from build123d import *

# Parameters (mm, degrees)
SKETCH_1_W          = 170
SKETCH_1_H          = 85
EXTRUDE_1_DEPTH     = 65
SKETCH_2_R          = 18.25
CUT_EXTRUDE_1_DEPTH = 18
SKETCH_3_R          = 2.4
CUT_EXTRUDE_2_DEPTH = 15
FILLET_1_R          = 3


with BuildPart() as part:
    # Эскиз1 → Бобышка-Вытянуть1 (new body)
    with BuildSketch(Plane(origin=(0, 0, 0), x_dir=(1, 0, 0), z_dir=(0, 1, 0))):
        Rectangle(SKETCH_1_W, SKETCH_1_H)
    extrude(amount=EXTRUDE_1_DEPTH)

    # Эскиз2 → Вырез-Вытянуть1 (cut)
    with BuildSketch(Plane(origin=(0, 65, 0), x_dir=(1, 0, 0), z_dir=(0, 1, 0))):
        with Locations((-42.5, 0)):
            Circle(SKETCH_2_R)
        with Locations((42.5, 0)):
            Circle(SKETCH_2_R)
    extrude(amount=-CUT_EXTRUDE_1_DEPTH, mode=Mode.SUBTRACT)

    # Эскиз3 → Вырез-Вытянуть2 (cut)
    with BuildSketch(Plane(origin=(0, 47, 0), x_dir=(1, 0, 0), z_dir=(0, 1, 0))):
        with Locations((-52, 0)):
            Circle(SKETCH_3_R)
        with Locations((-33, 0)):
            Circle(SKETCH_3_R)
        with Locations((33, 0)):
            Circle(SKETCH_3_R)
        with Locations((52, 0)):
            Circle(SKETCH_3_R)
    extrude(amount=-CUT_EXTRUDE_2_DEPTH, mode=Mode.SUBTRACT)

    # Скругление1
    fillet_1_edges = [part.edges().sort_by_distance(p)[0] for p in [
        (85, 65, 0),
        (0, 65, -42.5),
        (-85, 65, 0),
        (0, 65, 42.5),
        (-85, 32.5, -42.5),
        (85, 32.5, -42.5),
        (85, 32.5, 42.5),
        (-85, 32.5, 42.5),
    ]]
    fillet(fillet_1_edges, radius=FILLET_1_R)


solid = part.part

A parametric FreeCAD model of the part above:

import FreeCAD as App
import Part
import Sketcher


def edges_at(feature, points):
    """Names of the edges that pass closest to the given points."""
    edges = feature.Shape.Edges
    near = lambda p: min(range(len(edges)), key=lambda i: edges[i].distToShape(Part.Vertex(*p))[0])
    return sorted({f"Edge{near(p) + 1}" for p in points})


def add_polygon(sketch, points):
    """Adds a closed chain of lines whose ends are joined by coincident constraints."""
    first, n = sketch.GeometryCount, len(points)
    for a, b in zip(points, points[1:] + points[:1]):
        sketch.addGeometry(Part.LineSegment(App.Vector(*a, 0), App.Vector(*b, 0)), False)
    for i in range(n):
        sketch.addConstraint(Sketcher.Constraint("Coincident", first + i, 2, first + (i + 1) % n, 1))

doc = App.newDocument("Part")
body = doc.addObject("PartDesign::Body", "Body")

# Sketch on XZ plane
sketch1 = doc.addObject("Sketcher::SketchObject", "Sketch")
body.addObject(sketch1)
sketch1.AttachmentSupport = (doc.XZ_Plane, [""])
sketch1.MapMode = "FlatFace"
add_polygon(sketch1, [(-85, -42), (-85, 42), (85, 42), (85, -42)])  # lines 0-3
sketch1.addConstraint(Sketcher.Constraint("Vertical", 0))
sketch1.addConstraint(Sketcher.Constraint("Horizontal", 1))
sketch1.addConstraint(Sketcher.Constraint("Vertical", 2))
sketch1.addConstraint(Sketcher.Constraint("Horizontal", 3))
sketch1.addConstraint(Sketcher.Constraint("Symmetric", 0, 2, 2, 2, -1, 1))
sketch1.addConstraint(Sketcher.Constraint("DistanceX", 1, 1, 1, 2, 170.0))
sketch1.addConstraint(Sketcher.Constraint("DistanceY", 0, 1, 0, 2, 85.0))
pad1 = doc.addObject("PartDesign::Pad", "Pad")
body.addObject(pad1)
pad1.Profile = sketch1
pad1.Length = 65
pad1.Reversed = True

# Sketch on XZ plane
sketch2 = doc.addObject("Sketcher::SketchObject", "Sketch001")
body.addObject(sketch2)
sketch2.AttachmentSupport = (doc.XZ_Plane, [""])
sketch2.MapMode = "FlatFace"
sketch2.AttachmentOffset = App.Placement(App.Vector(0, 0, -65), App.Rotation())
sketch2.addGeometry(Part.Circle(App.Vector(-42, 0, 0), App.Vector(0, 0, 1), 18), False)
sketch2.addGeometry(Part.Circle(App.Vector(42, 0, 0), App.Vector(0, 0, 1), 18), False)
sketch2.addConstraint(Sketcher.Constraint("Equal", 0, 1))
sketch2.addConstraint(Sketcher.Constraint("Symmetric", 0, 3, 1, 3, -1, 1))
sketch2.addConstraint(Sketcher.Constraint("PointOnObject", 0, 3, -1))
sketch2.addConstraint(Sketcher.Constraint("Diameter", 0, 36.5))
sketch2.addConstraint(Sketcher.Constraint("DistanceX", 0, 3, 1, 3, 85.0))
pocket1 = doc.addObject("PartDesign::Pocket", "Pocket")
body.addObject(pocket1)
pocket1.Profile = sketch2
pocket1.Length = 18
pocket1.Reversed = True

# Sketch on XZ plane
sketch3 = doc.addObject("Sketcher::SketchObject", "Sketch002")
body.addObject(sketch3)
sketch3.AttachmentSupport = (doc.XZ_Plane, [""])
sketch3.MapMode = "FlatFace"
sketch3.AttachmentOffset = App.Placement(App.Vector(0, 0, -47), App.Rotation())
sketch3.addGeometry(Part.Circle(App.Vector(-52, 0, 0), App.Vector(0, 0, 1), 2.4), False)
sketch3.addGeometry(Part.Circle(App.Vector(-33, 0, 0), App.Vector(0, 0, 1), 2.4), False)
sketch3.addGeometry(Part.Circle(App.Vector(33, 0, 0), App.Vector(0, 0, 1), 2.4), False)
sketch3.addGeometry(Part.Circle(App.Vector(52, 0, 0), App.Vector(0, 0, 1), 2.4), False)
sketch3.addConstraint(Sketcher.Constraint("Equal", 0, 1))
sketch3.addConstraint(Sketcher.Constraint("Equal", 1, 2))
sketch3.addConstraint(Sketcher.Constraint("Equal", 2, 3))
sketch3.addConstraint(Sketcher.Constraint("Symmetric", 1, 3, 2, 3, -1, 1))
sketch3.addConstraint(Sketcher.Constraint("Symmetric", 0, 3, 3, 3, -1, 1))
sketch3.addConstraint(Sketcher.Constraint("PointOnObject", 0, 3, -1))
sketch3.addConstraint(Sketcher.Constraint("PointOnObject", 1, 3, -1))
sketch3.addConstraint(Sketcher.Constraint("Diameter", 0, 4.8))
sketch3.addConstraint(Sketcher.Constraint("DistanceX", 0, 3, -1, 1, 52.0))
sketch3.addConstraint(Sketcher.Constraint("DistanceX", 1, 3, -1, 1, 33.0))
pocket2 = doc.addObject("PartDesign::Pocket", "Pocket001")
body.addObject(pocket2)
pocket2.Profile = sketch3
pocket2.Length = 15
pocket2.Reversed = True
doc.recompute()

fillet = doc.addObject("PartDesign::Fillet", "Fillet")
body.addObject(fillet)
fillet.Base = (pocket2, edges_at(pocket2, [
    (85, 65, 0),
    (0, 65, -42.5),
    (-85, 65, 0),
    (0, 65, 42.5),
    (-85, 32.5, -42.5),
    (85, 32.5, -42.5),
    (85, 32.5, 42.5),
    (-85, 32.5, 42.5),
]))
fillet.Radius = 3

doc.recompute()
